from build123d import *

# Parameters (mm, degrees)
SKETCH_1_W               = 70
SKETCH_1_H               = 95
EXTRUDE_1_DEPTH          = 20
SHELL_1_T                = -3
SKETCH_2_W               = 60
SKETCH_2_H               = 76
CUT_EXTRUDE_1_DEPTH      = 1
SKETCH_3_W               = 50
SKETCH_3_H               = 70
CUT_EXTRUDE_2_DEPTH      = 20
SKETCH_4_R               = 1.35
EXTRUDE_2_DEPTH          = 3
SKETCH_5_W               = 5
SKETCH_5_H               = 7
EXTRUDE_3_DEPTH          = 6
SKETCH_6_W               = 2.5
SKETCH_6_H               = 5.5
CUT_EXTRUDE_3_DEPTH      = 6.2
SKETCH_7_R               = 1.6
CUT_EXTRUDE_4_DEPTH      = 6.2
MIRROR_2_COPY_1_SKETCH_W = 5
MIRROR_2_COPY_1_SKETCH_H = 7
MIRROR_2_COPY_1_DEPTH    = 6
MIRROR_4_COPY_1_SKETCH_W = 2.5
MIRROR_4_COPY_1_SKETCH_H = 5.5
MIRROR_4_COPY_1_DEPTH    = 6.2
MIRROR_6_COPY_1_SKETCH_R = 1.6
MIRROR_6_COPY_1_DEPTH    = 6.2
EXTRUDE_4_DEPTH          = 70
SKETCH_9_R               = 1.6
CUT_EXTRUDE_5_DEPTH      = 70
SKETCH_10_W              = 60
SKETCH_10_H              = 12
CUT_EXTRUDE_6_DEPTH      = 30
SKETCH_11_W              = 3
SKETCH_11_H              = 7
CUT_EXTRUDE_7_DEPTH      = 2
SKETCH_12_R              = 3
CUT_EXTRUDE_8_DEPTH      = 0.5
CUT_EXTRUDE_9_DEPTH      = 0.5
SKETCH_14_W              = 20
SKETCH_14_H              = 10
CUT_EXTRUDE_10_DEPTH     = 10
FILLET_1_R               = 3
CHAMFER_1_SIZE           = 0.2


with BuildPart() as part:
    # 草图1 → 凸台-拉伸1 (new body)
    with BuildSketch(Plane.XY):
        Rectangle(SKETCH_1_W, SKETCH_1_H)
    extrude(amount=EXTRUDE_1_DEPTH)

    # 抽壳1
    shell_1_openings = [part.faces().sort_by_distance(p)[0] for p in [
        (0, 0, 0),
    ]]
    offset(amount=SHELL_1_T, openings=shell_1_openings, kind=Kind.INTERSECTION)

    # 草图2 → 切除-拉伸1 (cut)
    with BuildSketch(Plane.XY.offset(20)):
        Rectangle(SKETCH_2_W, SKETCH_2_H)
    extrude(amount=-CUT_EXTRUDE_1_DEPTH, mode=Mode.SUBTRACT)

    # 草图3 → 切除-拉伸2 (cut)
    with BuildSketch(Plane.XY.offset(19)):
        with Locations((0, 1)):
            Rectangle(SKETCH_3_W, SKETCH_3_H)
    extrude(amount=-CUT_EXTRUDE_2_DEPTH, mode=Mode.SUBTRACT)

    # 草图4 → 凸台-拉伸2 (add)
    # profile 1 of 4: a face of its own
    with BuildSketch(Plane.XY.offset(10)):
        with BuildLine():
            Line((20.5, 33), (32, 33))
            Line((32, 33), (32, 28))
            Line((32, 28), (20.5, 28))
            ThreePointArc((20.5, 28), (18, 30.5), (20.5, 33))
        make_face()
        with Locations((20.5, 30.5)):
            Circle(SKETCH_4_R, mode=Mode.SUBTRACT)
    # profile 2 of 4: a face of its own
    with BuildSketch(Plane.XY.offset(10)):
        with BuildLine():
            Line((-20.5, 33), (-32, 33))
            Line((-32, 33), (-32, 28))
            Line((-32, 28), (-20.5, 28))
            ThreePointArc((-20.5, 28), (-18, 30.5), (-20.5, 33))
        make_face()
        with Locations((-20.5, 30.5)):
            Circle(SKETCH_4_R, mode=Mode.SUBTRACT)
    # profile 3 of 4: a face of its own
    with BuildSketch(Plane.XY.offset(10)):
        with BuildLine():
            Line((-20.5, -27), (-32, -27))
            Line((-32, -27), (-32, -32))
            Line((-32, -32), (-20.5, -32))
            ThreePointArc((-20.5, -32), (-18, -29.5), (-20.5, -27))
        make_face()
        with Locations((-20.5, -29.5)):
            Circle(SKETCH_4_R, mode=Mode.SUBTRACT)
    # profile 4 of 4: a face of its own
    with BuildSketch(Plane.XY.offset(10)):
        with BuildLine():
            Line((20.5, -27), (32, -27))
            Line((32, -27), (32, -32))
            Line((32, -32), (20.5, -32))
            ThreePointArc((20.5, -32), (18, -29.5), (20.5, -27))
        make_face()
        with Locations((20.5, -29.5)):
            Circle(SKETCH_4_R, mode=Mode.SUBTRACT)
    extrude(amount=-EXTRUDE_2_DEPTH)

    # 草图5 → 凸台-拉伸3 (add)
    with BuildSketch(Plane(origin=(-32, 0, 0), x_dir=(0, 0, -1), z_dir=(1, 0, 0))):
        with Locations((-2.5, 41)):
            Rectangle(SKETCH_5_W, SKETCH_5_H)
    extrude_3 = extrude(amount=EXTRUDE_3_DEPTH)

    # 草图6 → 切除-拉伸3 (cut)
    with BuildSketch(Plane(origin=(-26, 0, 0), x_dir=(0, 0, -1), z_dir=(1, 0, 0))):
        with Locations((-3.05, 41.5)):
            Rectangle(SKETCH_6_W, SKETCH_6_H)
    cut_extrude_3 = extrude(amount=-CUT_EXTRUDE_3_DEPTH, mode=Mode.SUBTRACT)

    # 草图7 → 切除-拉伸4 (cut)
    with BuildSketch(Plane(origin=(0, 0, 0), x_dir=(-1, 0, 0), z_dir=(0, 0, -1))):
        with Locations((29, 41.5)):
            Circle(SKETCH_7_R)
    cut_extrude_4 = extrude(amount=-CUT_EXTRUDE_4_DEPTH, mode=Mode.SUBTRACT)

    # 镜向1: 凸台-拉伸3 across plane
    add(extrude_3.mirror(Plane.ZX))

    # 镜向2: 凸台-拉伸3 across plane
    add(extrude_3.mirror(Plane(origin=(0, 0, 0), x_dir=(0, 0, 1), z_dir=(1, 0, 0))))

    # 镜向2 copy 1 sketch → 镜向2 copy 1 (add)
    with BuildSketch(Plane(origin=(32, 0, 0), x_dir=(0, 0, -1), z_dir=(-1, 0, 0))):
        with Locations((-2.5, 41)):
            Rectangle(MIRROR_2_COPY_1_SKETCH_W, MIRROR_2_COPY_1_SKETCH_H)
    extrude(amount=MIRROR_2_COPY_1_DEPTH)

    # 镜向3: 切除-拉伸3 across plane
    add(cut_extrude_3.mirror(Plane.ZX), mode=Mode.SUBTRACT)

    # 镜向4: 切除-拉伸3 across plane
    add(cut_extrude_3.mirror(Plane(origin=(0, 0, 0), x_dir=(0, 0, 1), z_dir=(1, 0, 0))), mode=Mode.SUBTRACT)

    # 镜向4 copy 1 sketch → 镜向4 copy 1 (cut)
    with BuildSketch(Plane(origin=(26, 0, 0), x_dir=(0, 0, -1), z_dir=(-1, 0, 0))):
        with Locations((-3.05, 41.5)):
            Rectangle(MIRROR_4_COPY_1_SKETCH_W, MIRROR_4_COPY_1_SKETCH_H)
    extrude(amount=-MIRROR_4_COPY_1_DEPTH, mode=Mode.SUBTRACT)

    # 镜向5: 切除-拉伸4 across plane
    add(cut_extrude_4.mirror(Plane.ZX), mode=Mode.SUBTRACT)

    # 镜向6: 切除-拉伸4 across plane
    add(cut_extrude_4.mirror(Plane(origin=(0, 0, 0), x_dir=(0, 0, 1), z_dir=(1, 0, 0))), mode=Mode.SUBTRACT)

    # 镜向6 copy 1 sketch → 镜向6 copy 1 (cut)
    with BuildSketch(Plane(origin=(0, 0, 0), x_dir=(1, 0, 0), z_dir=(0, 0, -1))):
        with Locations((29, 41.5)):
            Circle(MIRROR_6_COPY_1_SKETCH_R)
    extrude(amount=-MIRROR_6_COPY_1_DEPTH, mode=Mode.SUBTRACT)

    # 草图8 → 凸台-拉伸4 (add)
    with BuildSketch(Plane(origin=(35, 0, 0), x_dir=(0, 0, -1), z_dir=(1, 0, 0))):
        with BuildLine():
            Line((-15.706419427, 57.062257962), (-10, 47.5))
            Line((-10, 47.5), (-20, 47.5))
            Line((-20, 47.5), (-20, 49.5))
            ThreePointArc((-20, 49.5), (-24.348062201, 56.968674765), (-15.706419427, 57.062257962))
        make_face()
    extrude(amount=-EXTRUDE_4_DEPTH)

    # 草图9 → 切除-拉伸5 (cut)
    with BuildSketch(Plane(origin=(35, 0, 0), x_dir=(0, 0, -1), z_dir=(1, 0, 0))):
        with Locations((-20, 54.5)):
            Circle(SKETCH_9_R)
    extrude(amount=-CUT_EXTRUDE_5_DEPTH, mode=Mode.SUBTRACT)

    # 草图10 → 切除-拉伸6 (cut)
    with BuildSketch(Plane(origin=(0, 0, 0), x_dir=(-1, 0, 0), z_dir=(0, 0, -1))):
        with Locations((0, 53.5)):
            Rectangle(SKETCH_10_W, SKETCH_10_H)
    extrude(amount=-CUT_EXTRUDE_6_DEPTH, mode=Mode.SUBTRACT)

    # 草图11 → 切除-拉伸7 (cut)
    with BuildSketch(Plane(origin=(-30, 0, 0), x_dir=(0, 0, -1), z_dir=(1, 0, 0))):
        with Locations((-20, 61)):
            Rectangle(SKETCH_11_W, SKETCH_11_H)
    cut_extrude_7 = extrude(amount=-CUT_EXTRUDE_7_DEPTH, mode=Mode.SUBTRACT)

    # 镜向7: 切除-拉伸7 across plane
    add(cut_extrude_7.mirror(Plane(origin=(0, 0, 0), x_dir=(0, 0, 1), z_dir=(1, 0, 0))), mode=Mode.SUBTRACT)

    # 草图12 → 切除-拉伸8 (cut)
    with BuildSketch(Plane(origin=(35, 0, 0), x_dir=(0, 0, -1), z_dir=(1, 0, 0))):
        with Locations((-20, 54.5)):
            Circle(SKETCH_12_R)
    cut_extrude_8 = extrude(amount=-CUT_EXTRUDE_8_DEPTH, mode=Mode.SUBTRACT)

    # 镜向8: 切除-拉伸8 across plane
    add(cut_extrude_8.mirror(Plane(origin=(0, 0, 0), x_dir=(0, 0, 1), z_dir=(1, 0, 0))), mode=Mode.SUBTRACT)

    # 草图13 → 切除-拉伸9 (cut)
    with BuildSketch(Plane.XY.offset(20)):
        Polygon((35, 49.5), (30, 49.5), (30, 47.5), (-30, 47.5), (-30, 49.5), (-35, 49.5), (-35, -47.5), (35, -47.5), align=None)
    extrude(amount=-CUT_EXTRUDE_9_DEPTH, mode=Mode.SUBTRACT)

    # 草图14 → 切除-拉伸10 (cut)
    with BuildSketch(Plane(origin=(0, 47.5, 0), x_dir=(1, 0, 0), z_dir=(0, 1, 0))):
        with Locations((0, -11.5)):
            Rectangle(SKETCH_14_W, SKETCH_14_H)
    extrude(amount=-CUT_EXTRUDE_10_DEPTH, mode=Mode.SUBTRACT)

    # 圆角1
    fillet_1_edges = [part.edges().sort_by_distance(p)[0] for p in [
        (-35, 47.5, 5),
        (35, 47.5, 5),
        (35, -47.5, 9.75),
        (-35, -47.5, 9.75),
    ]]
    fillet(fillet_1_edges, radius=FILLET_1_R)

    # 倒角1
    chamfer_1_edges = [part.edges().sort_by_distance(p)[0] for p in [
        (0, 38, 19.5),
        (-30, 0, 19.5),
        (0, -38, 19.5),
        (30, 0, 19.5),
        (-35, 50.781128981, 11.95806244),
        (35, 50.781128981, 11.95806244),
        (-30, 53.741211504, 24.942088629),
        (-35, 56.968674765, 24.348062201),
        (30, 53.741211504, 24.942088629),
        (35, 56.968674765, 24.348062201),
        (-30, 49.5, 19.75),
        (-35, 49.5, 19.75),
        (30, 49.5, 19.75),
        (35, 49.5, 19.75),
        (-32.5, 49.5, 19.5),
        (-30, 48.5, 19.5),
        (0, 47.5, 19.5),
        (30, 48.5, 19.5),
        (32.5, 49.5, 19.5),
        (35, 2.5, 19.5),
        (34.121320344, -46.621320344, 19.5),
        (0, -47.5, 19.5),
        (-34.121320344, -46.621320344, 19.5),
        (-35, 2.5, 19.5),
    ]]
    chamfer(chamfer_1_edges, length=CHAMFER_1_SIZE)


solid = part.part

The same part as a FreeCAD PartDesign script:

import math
import FreeCAD as App
import Part
import Sketcher
from FreeCAD import Vector


def edges_at(feature, points):
    """Names of the edges that pass closest to the given points."""
    edges = feature.Shape.Edges
    near = lambda p: min(range(len(edges)), key=lambda i: edges[i].distToShape(Part.Vertex(*p))[0])
    return sorted({f"Edge{near(p) + 1}" for p in points})


def faces_at(feature, points):
    """Names of the faces that lie closest to the given points."""
    faces = feature.Shape.Faces
    near = lambda p: min(range(len(faces)), key=lambda i: faces[i].distToShape(Part.Vertex(*p))[0])
    return sorted({f"Face{near(p) + 1}" for p in points})


def add_polygon(sketch, points):
    """Adds a closed chain of lines whose ends are joined by coincident constraints."""
    first, n = sketch.GeometryCount, len(points)
    for a, b in zip(points, points[1:] + points[:1]):
        sketch.addGeometry(Part.LineSegment(App.Vector(*a, 0), App.Vector(*b, 0)), False)
    for i in range(n):
        sketch.addConstraint(Sketcher.Constraint("Coincident", first + i, 2, first + (i + 1) % n, 1))

doc = App.newDocument("Part")
body = doc.addObject("PartDesign::Body", "Body")

# Sketch on XY plane
sketch1 = body.newObject("Sketcher::SketchObject", "Sketch")
sketch1.AttachmentSupport = (doc.getObject("XY_Plane"), [""])
sketch1.MapMode = "FlatFace"
add_polygon(sketch1, [(-35, 47.5), (-35, -47.5), (35, -47.5), (35, 47.5)])  # lines 0-3
sketch1.addConstraint([
    Sketcher.Constraint("Vertical", 0),
    Sketcher.Constraint("Horizontal", 1),
    Sketcher.Constraint("Vertical", 2),
    Sketcher.Constraint("Horizontal", 3),
    Sketcher.Constraint("Symmetric", 0, 2, 2, 2, -1, 1),
    Sketcher.Constraint("DistanceX", 1, 1, 1, 2, 70.0),
    Sketcher.Constraint("DistanceY", 0, 2, 0, 1, 95.0),
])
pad1 = body.newObject("PartDesign::Pad", "Pad")
pad1.Profile = sketch1
pad1.Length = 20
doc.recompute()

thickness = body.newObject("PartDesign::Thickness", "Thickness")
thickness.Base = (pad1, faces_at(pad1, [(0, 0, 0)]))
thickness.Value = 3
thickness.Reversed = True
thickness.Join = "Intersection"

# Sketch on XY plane
sketch2 = body.newObject("Sketcher::SketchObject", "Sketch001")
sketch2.AttachmentSupport = (doc.getObject("XY_Plane"), [""])
sketch2.MapMode = "FlatFace"
sketch2.AttachmentOffset = App.Placement(Vector(0, 0, 20), App.Rotation())
add_polygon(sketch2, [(-30, 38), (-30, -38), (30, -38), (30, 38)])  # lines 0-3
sketch2.addConstraint([
    Sketcher.Constraint("Vertical", 0),
    Sketcher.Constraint("Horizontal", 1),
    Sketcher.Constraint("Vertical", 2),
    Sketcher.Constraint("Horizontal", 3),
    Sketcher.Constraint("Symmetric", 0, 2, 2, 2, -1, 1),
    Sketcher.Constraint("DistanceX", 1, 1, 1, 2, 60.0),
    Sketcher.Constraint("DistanceY", 0, 2, 0, 1, 76.0),
])
pocket1 = body.newObject("PartDesign::Pocket", "Pocket")
pocket1.Profile = sketch2
pocket1.Length = 1

# Sketch on XY plane
sketch3 = body.newObject("Sketcher::SketchObject", "Sketch002")
sketch3.AttachmentSupport = (doc.getObject("XY_Plane"), [""])
sketch3.MapMode = "FlatFace"
sketch3.AttachmentOffset = App.Placement(Vector(0, 0, 19), App.Rotation())
add_polygon(sketch3, [(-25, 36), (-25, -34), (25, -34), (25, 36)])  # lines 0-3
sketch3.addConstraint([
    Sketcher.Constraint("Vertical", 0),
    Sketcher.Constraint("Horizontal", 1),
    Sketcher.Constraint("Vertical", 2),
    Sketcher.Constraint("Horizontal", 3),
    Sketcher.Constraint("DistanceX", 1, 1, 1, 2, 50.0),
    Sketcher.Constraint("DistanceY", 0, 2, 0, 1, 70.0),
    Sketcher.Constraint("DistanceX", 0, 2, -1, 1, 25.0),
    Sketcher.Constraint("DistanceY", 0, 2, -1, 1, 34.0),
])
pocket2 = body.newObject("PartDesign::Pocket", "Pocket001")
pocket2.Profile = sketch3
pocket2.Length = 20

# Sketch on XY plane
sketch4 = body.newObject("Sketcher::SketchObject", "Sketch003")
sketch4.AttachmentSupport = (doc.getObject("XY_Plane"), [""])
sketch4.MapMode = "FlatFace"
sketch4.AttachmentOffset = App.Placement(Vector(0, 0, 10), App.Rotation())
sketch4.addGeometry([
    Part.LineSegment(Vector(32, 33, 0), Vector(20.5, 33, 0)),  # 0
    Part.ArcOfCircle(Part.Circle(Vector(20.5, 30.5, 0), Vector(0, 0, 1), 2.5), math.radians(90), math.radians(270)),  # 1
    Part.LineSegment(Vector(20.5, 28, 0), Vector(32, 28, 0)),  # 2
    Part.LineSegment(Vector(32, 28, 0), Vector(32, 33, 0)),  # 3
    Part.Circle(Vector(20.5, 30.5, 0), Vector(0, 0, 1), 1.35),  # 4
    Part.LineSegment(Vector(-20.5, 33, 0), Vector(-32, 33, 0)),  # 5
    Part.LineSegment(Vector(-32, 33, 0), Vector(-32, 28, 0)),  # 6
    Part.LineSegment(Vector(-32, 28, 0), Vector(-20.5, 28, 0)),  # 7
    Part.ArcOfCircle(Part.Circle(Vector(-20.5, 30.5, 0), Vector(0, 0, 1), 2.5), math.radians(-90), math.radians(90)),  # 8
    Part.Circle(Vector(-20.5, 30.5, 0), Vector(0, 0, 1), 1.35),  # 9
    Part.LineSegment(Vector(-20.5, -27, 0), Vector(-32, -27, 0)),  # 10
    Part.LineSegment(Vector(-32, -27, 0), Vector(-32, -32, 0)),  # 11
    Part.LineSegment(Vector(-32, -32, 0), Vector(-20.5, -32, 0)),  # 12
    Part.ArcOfCircle(Part.Circle(Vector(-20.5, -29.5, 0), Vector(0, 0, 1), 2.5), math.radians(-90), math.radians(90)),  # 13
    Part.Circle(Vector(-20.5, -29.5, 0), Vector(0, 0, 1), 1.35),  # 14
    Part.LineSegment(Vector(32, -27, 0), Vector(20.5, -27, 0)),  # 15
    Part.ArcOfCircle(Part.Circle(Vector(20.5, -29.5, 0), Vector(0, 0, 1), 2.5), math.radians(90), math.radians(270)),  # 16
    Part.LineSegment(Vector(20.5, -32, 0), Vector(32, -32, 0)),  # 17
    Part.LineSegment(Vector(32, -32, 0), Vector(32, -27, 0)),  # 18
    Part.Circle(Vector(20.5, -29.5, 0), Vector(0, 0, 1), 1.35),  # 19
], False)
sketch4.addConstraint([
    Sketcher.Constraint("Tangent", 0, 2, 1, 1),
    Sketcher.Constraint("Tangent", 1, 2, 2, 1),
    Sketcher.Constraint("Coincident", 2, 2, 3, 1),
    Sketcher.Constraint("Coincident", 3, 2, 0, 1),
    Sketcher.Constraint("Coincident", 5, 2, 6, 1),
    Sketcher.Constraint("Coincident", 6, 2, 7, 1),
    Sketcher.Constraint("Tangent", 7, 2, 8, 1),
    Sketcher.Constraint("Tangent", 8, 2, 5, 1),
    Sketcher.Constraint("Coincident", 10, 2, 11, 1),
    Sketcher.Constraint("Coincident", 11, 2, 12, 1),
    Sketcher.Constraint("Tangent", 12, 2, 13, 1),
    Sketcher.Constraint("Tangent", 13, 2, 10, 1),
    Sketcher.Constraint("Tangent", 15, 2, 16, 1),
    Sketcher.Constraint("Tangent", 16, 2, 17, 1),
    Sketcher.Constraint("Coincident", 17, 2, 18, 1),
    Sketcher.Constraint("Coincident", 18, 2, 15, 1),
    Sketcher.Constraint("Horizontal", 0),
    Sketcher.Constraint("Horizontal", 2),
    Sketcher.Constraint("Vertical", 3),
    Sketcher.Constraint("Horizontal", 5),
    Sketcher.Constraint("Vertical", 6),
    Sketcher.Constraint("Horizontal", 7),
    Sketcher.Constraint("Horizontal", 10),
    Sketcher.Constraint("Vertical", 11),
    Sketcher.Constraint("Horizontal", 12),
    Sketcher.Constraint("Horizontal", 15),
    Sketcher.Constraint("Horizontal", 17),
    Sketcher.Constraint("Vertical", 18),
    Sketcher.Constraint("Coincident", 4, 3, 1, 3),
    Sketcher.Constraint("Coincident", 9, 3, 8, 3),
    Sketcher.Constraint("Coincident", 14, 3, 13, 3),
    Sketcher.Constraint("Coincident", 19, 3, 16, 3),
    Sketcher.Constraint("Equal", 1, 8),
    Sketcher.Constraint("Equal", 4, 9),
    Sketcher.Constraint("Equal", 8, 13),
    Sketcher.Constraint("Equal", 9, 14),
    Sketcher.Constraint("Equal", 13, 16),
    Sketcher.Constraint("Equal", 14, 19),
    Sketcher.Constraint("Symmetric", 1, 3, 8, 3, -2),
    Sketcher.Constraint("Symmetric", 13, 3, 16, 3, -2),
    Sketcher.Constraint("Vertical", 9, 3, 13, 3),
    Sketcher.Constraint("Vertical", 6, 2, 10, 2),
    Sketcher.Constraint("Vertical", 3, 2, 17, 2),
    Sketcher.Constraint("Equal", 2, 5),
    Sketcher.Constraint("Diameter", 4, 2.7),
    Sketcher.Constraint("Radius", 1, 2.5),
    Sketcher.Constraint("DistanceX", 0, 2, 0, 1, 11.5),
    Sketcher.Constraint("DistanceY", -1, 1, 0, 2, 33.0),
    Sketcher.Constraint("DistanceX", -1, 1, 2, 2, 32.0),
    Sketcher.Constraint("DistanceY", 10, 2, -1, 1, 27.0),
])
pad2 = body.newObject("PartDesign::Pad", "Pad001")
pad2.Profile = sketch4
pad2.Length = 3
pad2.Reversed = True

# Sketch on YZ plane
sketch5 = body.newObject("Sketcher::SketchObject", "Sketch004")
sketch5.AttachmentSupport = (doc.getObject("YZ_Plane"), [""])
sketch5.MapMode = "FlatFace"
sketch5.AttachmentOffset = App.Placement(Vector(0, 0, -32), App.Rotation())
add_polygon(sketch5, [(44.5, 5), (37.5, 5), (37.5, 0), (44.5, 0)])  # lines 0-3
sketch5.addConstraint([
    Sketcher.Constraint("Horizontal", 0),
    Sketcher.Constraint("Vertical", 1),
    Sketcher.Constraint("Horizontal", 2),
    Sketcher.Constraint("Vertical", 3),
    Sketcher.Constraint("PointOnObject", 1, 2, -1),
    Sketcher.Constraint("DistanceX", 0, 2, 0, 1, 7.0),
    Sketcher.Constraint("DistanceY", 1, 2, 1, 1, 5.0),
    Sketcher.Constraint("DistanceX", -1, 1, 0, 2, 37.5),
])
pad3 = body.newObject("PartDesign::Pad", "Pad002")
pad3.Profile = sketch5
pad3.Length = 6

# Sketch on YZ plane
sketch6 = body.newObject("Sketcher::SketchObject", "Sketch005")
sketch6.AttachmentSupport = (doc.getObject("YZ_Plane"), [""])
sketch6.MapMode = "FlatFace"
sketch6.AttachmentOffset = App.Placement(Vector(0, 0, -26), App.Rotation())
add_polygon(sketch6, [(44.25, 4.3), (38.75, 4.3), (38.75, 1.8), (44.25, 1.8)])  # lines 0-3
sketch6.addConstraint([
    Sketcher.Constraint("Horizontal", 0),
    Sketcher.Constraint("Vertical", 1),
    Sketcher.Constraint("Horizontal", 2),
    Sketcher.Constraint("Vertical", 3),
    Sketcher.Constraint("DistanceX", 0, 2, 0, 1, 5.5),
    Sketcher.Constraint("DistanceY", 1, 2, 1, 1, 2.5),
    Sketcher.Constraint("DistanceY", -1, 1, 0, 2, 4.3),
    Sketcher.Constraint("DistanceX", -1, 1, 0, 2, 38.75),
])
pocket3 = body.newObject("PartDesign::Pocket", "Pocket002")
pocket3.Profile = sketch6
pocket3.Length = 6.2

# Sketch on XY plane
sketch7 = body.newObject("Sketcher::SketchObject", "Sketch006")
sketch7.AttachmentSupport = (doc.getObject("XY_Plane"), [""])
sketch7.MapMode = "FlatFace"
sketch7.addGeometry(Part.Circle(Vector(-29, 41.5, 0), Vector(0, 0, 1), 1.6), False)
sketch7.addConstraint([
    Sketcher.Constraint("Diameter", 0, 3.2),
    Sketcher.Constraint("DistanceX", 0, 3, -1, 1, 29.0),
    Sketcher.Constraint("DistanceY", -1, 1, 0, 3, 41.5),
])
pocket4 = body.newObject("PartDesign::Pocket", "Pocket003")
pocket4.Profile = sketch7
pocket4.Length = 6.2
pocket4.Reversed = True
doc.recompute()

mirrored = body.newObject("PartDesign::Mirrored", "Mirrored")
mirrored.Originals = [pad3]
mirrored.MirrorPlane = (doc.getObject("XZ_Plane"), [""])
body.Tip = mirrored
doc.recompute()

mirrored2 = body.newObject("PartDesign::Mirrored", "Mirrored001")
mirrored2.Originals = [pad3]
mirrored2.MirrorPlane = (doc.getObject("YZ_Plane"), [""])
body.Tip = mirrored2

# Sketch on YZ plane
sketch8 = body.newObject("Sketcher::SketchObject", "Sketch007")
sketch8.AttachmentSupport = (doc.getObject("YZ_Plane"), [""])
sketch8.MapMode = "FlatFace"
sketch8.AttachmentOffset = App.Placement(Vector(0, 0, 32), App.Rotation())
add_polygon(sketch8, [(-44.5, 5), (-37.5, 5), (-37.5, 0), (-44.5, 0)])  # lines 0-3
sketch8.addConstraint([
    Sketcher.Constraint("Horizontal", 0),
    Sketcher.Constraint("Vertical", 1),
    Sketcher.Constraint("Horizontal", 2),
    Sketcher.Constraint("Vertical", 3),
    Sketcher.Constraint("PointOnObject", 1, 2, -1),
    Sketcher.Constraint("DistanceX", 0, 1, 0, 2, 7.0),
    Sketcher.Constraint("DistanceY", 1, 2, 1, 1, 5.0),
    Sketcher.Constraint("DistanceX", 0, 2, -1, 1, 37.5),
])
pad4 = body.newObject("PartDesign::Pad", "Pad003")
pad4.Profile = sketch8
pad4.Length = 6
pad4.Reversed = True
doc.recompute()

mirrored3 = body.newObject("PartDesign::Mirrored", "Mirrored002")
mirrored3.Originals = [pocket3]
mirrored3.MirrorPlane = (doc.getObject("XZ_Plane"), [""])
body.Tip = mirrored3
doc.recompute()

mirrored4 = body.newObject("PartDesign::Mirrored", "Mirrored003")
mirrored4.Originals = [pocket3]
mirrored4.MirrorPlane = (doc.getObject("YZ_Plane"), [""])
body.Tip = mirrored4

# Sketch on YZ plane
sketch9 = body.newObject("Sketcher::SketchObject", "Sketch008")
sketch9.AttachmentSupport = (doc.getObject("YZ_Plane"), [""])
sketch9.MapMode = "FlatFace"
sketch9.AttachmentOffset = App.Placement(Vector(0, 0, 26), App.Rotation())
add_polygon(sketch9, [(-44.25, 4.3), (-38.75, 4.3), (-38.75, 1.8), (-44.25, 1.8)])  # lines 0-3
sketch9.addConstraint([
    Sketcher.Constraint("Horizontal", 0),
    Sketcher.Constraint("Vertical", 1),
    Sketcher.Constraint("Horizontal", 2),
    Sketcher.Constraint("Vertical", 3),
    Sketcher.Constraint("DistanceX", 0, 1, 0, 2, 5.5),
    Sketcher.Constraint("DistanceY", 1, 2, 1, 1, 2.5),
    Sketcher.Constraint("DistanceY", -1, 1, 0, 2, 4.3),
    Sketcher.Constraint("DistanceX", 0, 2, -1, 1, 38.75),
])
pocket5 = body.newObject("PartDesign::Pocket", "Pocket004")
pocket5.Profile = sketch9
pocket5.Length = 6.2
pocket5.Reversed = True
doc.recompute()

mirrored5 = body.newObject("PartDesign::Mirrored", "Mirrored004")
mirrored5.Originals = [pocket4]
mirrored5.MirrorPlane = (doc.getObject("XZ_Plane"), [""])
body.Tip = mirrored5
doc.recompute()

mirrored6 = body.newObject("PartDesign::Mirrored", "Mirrored005")
mirrored6.Originals = [pocket4]
mirrored6.MirrorPlane = (doc.getObject("YZ_Plane"), [""])
body.Tip = mirrored6

# Sketch on XY plane
sketch10 = body.newObject("Sketcher::SketchObject", "Sketch009")
sketch10.AttachmentSupport = (doc.getObject("XY_Plane"), [""])
sketch10.MapMode = "FlatFace"
sketch10.addGeometry(Part.Circle(Vector(29, -41.5, 0), Vector(0, 0, 1), 1.6), False)
sketch10.addConstraint([
    Sketcher.Constraint("Diameter", 0, 3.2),
    Sketcher.Constraint("DistanceX", -1, 1, 0, 3, 29.0),
    Sketcher.Constraint("DistanceY", 0, 3, -1, 1, 41.5),
])
pocket6 = body.newObject("PartDesign::Pocket", "Pocket005")
pocket6.Profile = sketch10
pocket6.Length = 6.2
pocket6.Reversed = True

# Sketch on YZ plane
sketch11 = body.newObject("Sketcher::SketchObject", "Sketch010")
sketch11.AttachmentSupport = (doc.getObject("YZ_Plane"), [""])
sketch11.MapMode = "FlatFace"
sketch11.AttachmentOffset = App.Placement(Vector(0, 0, 35), App.Rotation())
sketch11.addGeometry([
    Part.LineSegment(Vector(47.5, 10, 0), Vector(57.062258, 15.706419, 0)),
    Part.ArcOfCircle(Part.Circle(Vector(54.5, 20, 0), Vector(0, 0, 1), 5), math.radians(-59.172733), math.radians(180)),
    Part.LineSegment(Vector(49.5, 20, 0), Vector(47.5, 20, 0)),
    Part.LineSegment(Vector(47.5, 20, 0), Vector(47.5, 10, 0)),
], False)
sketch11.addConstraint([
    Sketcher.Constraint("Tangent", 0, 2, 1, 1),
    Sketcher.Constraint("Coincident", 1, 2, 2, 1),
    Sketcher.Constraint("Coincident", 2, 2, 3, 1),
    Sketcher.Constraint("Coincident", 3, 2, 0, 1),
    Sketcher.Constraint("Horizontal", 2),
    Sketcher.Constraint("Vertical", 3),
    Sketcher.Constraint("Radius", 1, 5.0),
    Sketcher.Constraint("DistanceX", 2, 2, 2, 1, 2.0),
    Sketcher.Constraint("DistanceY", 3, 2, 3, 1, 10.0),
    Sketcher.Constraint("DistanceY", -1, 1, 1, 3, 20.0),
    Sketcher.Constraint("DistanceY", -1, 1, 1, 2, 20.0),
    Sketcher.Constraint("DistanceX", -1, 1, 1, 3, 54.5),
])
pad5 = body.newObject("PartDesign::Pad", "Pad004")
pad5.Profile = sketch11
pad5.Length = 70
pad5.Reversed = True

# Sketch on YZ plane
sketch12 = body.newObject("Sketcher::SketchObject", "Sketch011")
sketch12.AttachmentSupport = (doc.getObject("YZ_Plane"), [""])
sketch12.MapMode = "FlatFace"
sketch12.AttachmentOffset = App.Placement(Vector(0, 0, 35), App.Rotation())
sketch12.addGeometry(Part.Circle(Vector(54.5, 20, 0), Vector(0, 0, 1), 1.6), False)
sketch12.addConstraint([
    Sketcher.Constraint("Diameter", 0, 3.2),
    Sketcher.Constraint("DistanceY", -1, 1, 0, 3, 20.0),
    Sketcher.Constraint("DistanceX", -1, 1, 0, 3, 54.5),
])
pocket7 = body.newObject("PartDesign::Pocket", "Pocket006")
pocket7.Profile = sketch12
pocket7.Length = 70

# Sketch on XY plane
sketch13 = body.newObject("Sketcher::SketchObject", "Sketch012")
sketch13.AttachmentSupport = (doc.getObject("XY_Plane"), [""])
sketch13.MapMode = "FlatFace"
add_polygon(sketch13, [(30, 59.5), (30, 47.5), (-30, 47.5), (-30, 59.5)])  # lines 0-3
sketch13.addConstraint([
    Sketcher.Constraint("Vertical", 0),
    Sketcher.Constraint("Horizontal", 1),
    Sketcher.Constraint("Vertical", 2),
    Sketcher.Constraint("Horizontal", 3),
    Sketcher.Constraint("DistanceX", 1, 2, 1, 1, 60.0),
    Sketcher.Constraint("DistanceY", 0, 2, 0, 1, 12.0),
    Sketcher.Constraint("DistanceX", -1, 1, 0, 2, 30.0),
    Sketcher.Constraint("DistanceY", -1, 1, 0, 2, 47.5),
])
pocket8 = body.newObject("PartDesign::Pocket", "Pocket007")
pocket8.Profile = sketch13
pocket8.Length = 30
pocket8.Reversed = True

# Sketch on YZ plane
sketch14 = body.newObject("Sketcher::SketchObject", "Sketch013")
sketch14.AttachmentSupport = (doc.getObject("YZ_Plane"), [""])
sketch14.MapMode = "FlatFace"
sketch14.AttachmentOffset = App.Placement(Vector(0, 0, -30), App.Rotation())
add_polygon(sketch14, [(64.5, 21.5), (57.5, 21.5), (57.5, 18.5), (64.5, 18.5)])  # lines 0-3
sketch14.addConstraint([
    Sketcher.Constraint("Horizontal", 0),
    Sketcher.Constraint("Vertical", 1),
    Sketcher.Constraint("Horizontal", 2),
    Sketcher.Constraint("Vertical", 3),
    Sketcher.Constraint("DistanceX", 0, 2, 0, 1, 7.0),
    Sketcher.Constraint("DistanceY", 1, 2, 1, 1, 3.0),
    Sketcher.Constraint("DistanceX", -1, 1, 0, 2, 57.5),
    Sketcher.Constraint("DistanceY", -1, 1, 0, 2, 21.5),
])
pocket9 = body.newObject("PartDesign::Pocket", "Pocket008")
pocket9.Profile = sketch14
pocket9.Length = 2
doc.recompute()

mirrored7 = body.newObject("PartDesign::Mirrored", "Mirrored006")
mirrored7.Originals = [pocket9]
mirrored7.MirrorPlane = (doc.getObject("YZ_Plane"), [""])
body.Tip = mirrored7

# Sketch on YZ plane
sketch15 = body.newObject("Sketcher::SketchObject", "Sketch014")
sketch15.AttachmentSupport = (doc.getObject("YZ_Plane"), [""])
sketch15.MapMode = "FlatFace"
sketch15.AttachmentOffset = App.Placement(Vector(0, 0, 35), App.Rotation())
sketch15.addGeometry(Part.Circle(Vector(54.5, 20, 0), Vector(0, 0, 1), 3), False)
sketch15.addConstraint([
    Sketcher.Constraint("Diameter", 0, 6.0),
    Sketcher.Constraint("DistanceY", -1, 1, 0, 3, 20.0),
    Sketcher.Constraint("DistanceX", -1, 1, 0, 3, 54.5),
])
pocket10 = body.newObject("PartDesign::Pocket", "Pocket009")
pocket10.Profile = sketch15
pocket10.Length = 0.5
doc.recompute()

mirrored8 = body.newObject("PartDesign::Mirrored", "Mirrored007")
mirrored8.Originals = [pocket10]
mirrored8.MirrorPlane = (doc.getObject("YZ_Plane"), [""])
body.Tip = mirrored8

# Sketch on XY plane
sketch16 = body.newObject("Sketcher::SketchObject", "Sketch015")
sketch16.AttachmentSupport = (doc.getObject("XY_Plane"), [""])
sketch16.MapMode = "FlatFace"
sketch16.AttachmentOffset = App.Placement(Vector(0, 0, 20), App.Rotation())
add_polygon(sketch16, [(35, 49.5), (30, 49.5), (30, 47.5), (-30, 47.5), (-30, 49.5), (-35, 49.5), (-35, -47.5), (35, -47.5)])  # lines 0-7
sketch16.addConstraint([
    Sketcher.Constraint("Horizontal", 0),
    Sketcher.Constraint("Vertical", 1),
    Sketcher.Constraint("Horizontal", 2),
    Sketcher.Constraint("Vertical", 3),
    Sketcher.Constraint("Horizontal", 4),
    Sketcher.Constraint("Vertical", 5),
    Sketcher.Constraint("Horizontal", 6),
    Sketcher.Constraint("Vertical", 7),
    Sketcher.Constraint("Symmetric", 0, 2, 3, 2, -2),
    Sketcher.Constraint("Equal", 0, 4),
    Sketcher.Constraint("DistanceX", 0, 2, 0, 1, 5.0),
    Sketcher.Constraint("DistanceX", 2, 2, 2, 1, 60.0),
    Sketcher.Constraint("DistanceY", 1, 2, 1, 1, 2.0),
    Sketcher.Constraint("DistanceY", 5, 2, 5, 1, 97.0),
    Sketcher.Constraint("DistanceY", -1, 1, 0, 2, 49.5),
])
pocket11 = body.newObject("PartDesign::Pocket", "Pocket010")
pocket11.Profile = sketch16
pocket11.Length = 0.5

# Sketch on XZ plane
sketch17 = body.newObject("Sketcher::SketchObject", "Sketch016")
sketch17.AttachmentSupport = (doc.getObject("XZ_Plane"), [""])
sketch17.MapMode = "FlatFace"
sketch17.AttachmentOffset = App.Placement(Vector(0, 0, -47.5), App.Rotation())
add_polygon(sketch17, [(-10, 6.5), (-10, 16.5), (10, 16.5), (10, 6.5)])  # lines 0-3
sketch17.addConstraint([
    Sketcher.Constraint("Vertical", 0),
    Sketcher.Constraint("Horizontal", 1),
    Sketcher.Constraint("Vertical", 2),
    Sketcher.Constraint("Horizontal", 3),
    Sketcher.Constraint("DistanceX", 1, 1, 1, 2, 20.0),
    Sketcher.Constraint("DistanceY", 0, 1, 0, 2, 10.0),
    Sketcher.Constraint("DistanceX", 0, 2, -1, 1, 10.0),
    Sketcher.Constraint("DistanceY", -1, 1, 0, 2, 16.5),
])
pocket12 = body.newObject("PartDesign::Pocket", "Pocket011")
pocket12.Profile = sketch17
pocket12.Length = 10
pocket12.Reversed = True
doc.recompute()

fillet = body.newObject("PartDesign::Fillet", "Fillet")
fillet.Base = (pocket12, edges_at(pocket12, [
    (-35, 47.5, 5),
    (35, 47.5, 5),
    (35, -47.5, 9.75),
    (-35, -47.5, 9.75),
]))
fillet.Radius = 3
doc.recompute()

chamfer = body.newObject("PartDesign::Chamfer", "Chamfer")
chamfer.Base = (fillet, edges_at(fillet, [
    (0, 38, 19.5),
    (-30, 0, 19.5),
    (0, -38, 19.5),
    (30, 0, 19.5),
    (-35, 50.781, 11.958),
    (35, 50.781, 11.958),
    (-30, 53.741, 24.942),
    (-35, 56.969, 24.348),
    (30, 53.741, 24.942),
    (35, 56.969, 24.348),
    (-30, 49.5, 19.75),
    (-35, 49.5, 19.75),
    (30, 49.5, 19.75),
    (35, 49.5, 19.75),
    (-32.5, 49.5, 19.5),
    (-30, 48.5, 19.5),
    (0, 47.5, 19.5),
    (30, 48.5, 19.5),
    (32.5, 49.5, 19.5),
    (35, 2.5, 19.5),
    (34.121, -46.621, 19.5),
    (0, -47.5, 19.5),
    (-34.121, -46.621, 19.5),
    (-35, 2.5, 19.5),
]))
chamfer.Size = 0.2

doc.recompute()
